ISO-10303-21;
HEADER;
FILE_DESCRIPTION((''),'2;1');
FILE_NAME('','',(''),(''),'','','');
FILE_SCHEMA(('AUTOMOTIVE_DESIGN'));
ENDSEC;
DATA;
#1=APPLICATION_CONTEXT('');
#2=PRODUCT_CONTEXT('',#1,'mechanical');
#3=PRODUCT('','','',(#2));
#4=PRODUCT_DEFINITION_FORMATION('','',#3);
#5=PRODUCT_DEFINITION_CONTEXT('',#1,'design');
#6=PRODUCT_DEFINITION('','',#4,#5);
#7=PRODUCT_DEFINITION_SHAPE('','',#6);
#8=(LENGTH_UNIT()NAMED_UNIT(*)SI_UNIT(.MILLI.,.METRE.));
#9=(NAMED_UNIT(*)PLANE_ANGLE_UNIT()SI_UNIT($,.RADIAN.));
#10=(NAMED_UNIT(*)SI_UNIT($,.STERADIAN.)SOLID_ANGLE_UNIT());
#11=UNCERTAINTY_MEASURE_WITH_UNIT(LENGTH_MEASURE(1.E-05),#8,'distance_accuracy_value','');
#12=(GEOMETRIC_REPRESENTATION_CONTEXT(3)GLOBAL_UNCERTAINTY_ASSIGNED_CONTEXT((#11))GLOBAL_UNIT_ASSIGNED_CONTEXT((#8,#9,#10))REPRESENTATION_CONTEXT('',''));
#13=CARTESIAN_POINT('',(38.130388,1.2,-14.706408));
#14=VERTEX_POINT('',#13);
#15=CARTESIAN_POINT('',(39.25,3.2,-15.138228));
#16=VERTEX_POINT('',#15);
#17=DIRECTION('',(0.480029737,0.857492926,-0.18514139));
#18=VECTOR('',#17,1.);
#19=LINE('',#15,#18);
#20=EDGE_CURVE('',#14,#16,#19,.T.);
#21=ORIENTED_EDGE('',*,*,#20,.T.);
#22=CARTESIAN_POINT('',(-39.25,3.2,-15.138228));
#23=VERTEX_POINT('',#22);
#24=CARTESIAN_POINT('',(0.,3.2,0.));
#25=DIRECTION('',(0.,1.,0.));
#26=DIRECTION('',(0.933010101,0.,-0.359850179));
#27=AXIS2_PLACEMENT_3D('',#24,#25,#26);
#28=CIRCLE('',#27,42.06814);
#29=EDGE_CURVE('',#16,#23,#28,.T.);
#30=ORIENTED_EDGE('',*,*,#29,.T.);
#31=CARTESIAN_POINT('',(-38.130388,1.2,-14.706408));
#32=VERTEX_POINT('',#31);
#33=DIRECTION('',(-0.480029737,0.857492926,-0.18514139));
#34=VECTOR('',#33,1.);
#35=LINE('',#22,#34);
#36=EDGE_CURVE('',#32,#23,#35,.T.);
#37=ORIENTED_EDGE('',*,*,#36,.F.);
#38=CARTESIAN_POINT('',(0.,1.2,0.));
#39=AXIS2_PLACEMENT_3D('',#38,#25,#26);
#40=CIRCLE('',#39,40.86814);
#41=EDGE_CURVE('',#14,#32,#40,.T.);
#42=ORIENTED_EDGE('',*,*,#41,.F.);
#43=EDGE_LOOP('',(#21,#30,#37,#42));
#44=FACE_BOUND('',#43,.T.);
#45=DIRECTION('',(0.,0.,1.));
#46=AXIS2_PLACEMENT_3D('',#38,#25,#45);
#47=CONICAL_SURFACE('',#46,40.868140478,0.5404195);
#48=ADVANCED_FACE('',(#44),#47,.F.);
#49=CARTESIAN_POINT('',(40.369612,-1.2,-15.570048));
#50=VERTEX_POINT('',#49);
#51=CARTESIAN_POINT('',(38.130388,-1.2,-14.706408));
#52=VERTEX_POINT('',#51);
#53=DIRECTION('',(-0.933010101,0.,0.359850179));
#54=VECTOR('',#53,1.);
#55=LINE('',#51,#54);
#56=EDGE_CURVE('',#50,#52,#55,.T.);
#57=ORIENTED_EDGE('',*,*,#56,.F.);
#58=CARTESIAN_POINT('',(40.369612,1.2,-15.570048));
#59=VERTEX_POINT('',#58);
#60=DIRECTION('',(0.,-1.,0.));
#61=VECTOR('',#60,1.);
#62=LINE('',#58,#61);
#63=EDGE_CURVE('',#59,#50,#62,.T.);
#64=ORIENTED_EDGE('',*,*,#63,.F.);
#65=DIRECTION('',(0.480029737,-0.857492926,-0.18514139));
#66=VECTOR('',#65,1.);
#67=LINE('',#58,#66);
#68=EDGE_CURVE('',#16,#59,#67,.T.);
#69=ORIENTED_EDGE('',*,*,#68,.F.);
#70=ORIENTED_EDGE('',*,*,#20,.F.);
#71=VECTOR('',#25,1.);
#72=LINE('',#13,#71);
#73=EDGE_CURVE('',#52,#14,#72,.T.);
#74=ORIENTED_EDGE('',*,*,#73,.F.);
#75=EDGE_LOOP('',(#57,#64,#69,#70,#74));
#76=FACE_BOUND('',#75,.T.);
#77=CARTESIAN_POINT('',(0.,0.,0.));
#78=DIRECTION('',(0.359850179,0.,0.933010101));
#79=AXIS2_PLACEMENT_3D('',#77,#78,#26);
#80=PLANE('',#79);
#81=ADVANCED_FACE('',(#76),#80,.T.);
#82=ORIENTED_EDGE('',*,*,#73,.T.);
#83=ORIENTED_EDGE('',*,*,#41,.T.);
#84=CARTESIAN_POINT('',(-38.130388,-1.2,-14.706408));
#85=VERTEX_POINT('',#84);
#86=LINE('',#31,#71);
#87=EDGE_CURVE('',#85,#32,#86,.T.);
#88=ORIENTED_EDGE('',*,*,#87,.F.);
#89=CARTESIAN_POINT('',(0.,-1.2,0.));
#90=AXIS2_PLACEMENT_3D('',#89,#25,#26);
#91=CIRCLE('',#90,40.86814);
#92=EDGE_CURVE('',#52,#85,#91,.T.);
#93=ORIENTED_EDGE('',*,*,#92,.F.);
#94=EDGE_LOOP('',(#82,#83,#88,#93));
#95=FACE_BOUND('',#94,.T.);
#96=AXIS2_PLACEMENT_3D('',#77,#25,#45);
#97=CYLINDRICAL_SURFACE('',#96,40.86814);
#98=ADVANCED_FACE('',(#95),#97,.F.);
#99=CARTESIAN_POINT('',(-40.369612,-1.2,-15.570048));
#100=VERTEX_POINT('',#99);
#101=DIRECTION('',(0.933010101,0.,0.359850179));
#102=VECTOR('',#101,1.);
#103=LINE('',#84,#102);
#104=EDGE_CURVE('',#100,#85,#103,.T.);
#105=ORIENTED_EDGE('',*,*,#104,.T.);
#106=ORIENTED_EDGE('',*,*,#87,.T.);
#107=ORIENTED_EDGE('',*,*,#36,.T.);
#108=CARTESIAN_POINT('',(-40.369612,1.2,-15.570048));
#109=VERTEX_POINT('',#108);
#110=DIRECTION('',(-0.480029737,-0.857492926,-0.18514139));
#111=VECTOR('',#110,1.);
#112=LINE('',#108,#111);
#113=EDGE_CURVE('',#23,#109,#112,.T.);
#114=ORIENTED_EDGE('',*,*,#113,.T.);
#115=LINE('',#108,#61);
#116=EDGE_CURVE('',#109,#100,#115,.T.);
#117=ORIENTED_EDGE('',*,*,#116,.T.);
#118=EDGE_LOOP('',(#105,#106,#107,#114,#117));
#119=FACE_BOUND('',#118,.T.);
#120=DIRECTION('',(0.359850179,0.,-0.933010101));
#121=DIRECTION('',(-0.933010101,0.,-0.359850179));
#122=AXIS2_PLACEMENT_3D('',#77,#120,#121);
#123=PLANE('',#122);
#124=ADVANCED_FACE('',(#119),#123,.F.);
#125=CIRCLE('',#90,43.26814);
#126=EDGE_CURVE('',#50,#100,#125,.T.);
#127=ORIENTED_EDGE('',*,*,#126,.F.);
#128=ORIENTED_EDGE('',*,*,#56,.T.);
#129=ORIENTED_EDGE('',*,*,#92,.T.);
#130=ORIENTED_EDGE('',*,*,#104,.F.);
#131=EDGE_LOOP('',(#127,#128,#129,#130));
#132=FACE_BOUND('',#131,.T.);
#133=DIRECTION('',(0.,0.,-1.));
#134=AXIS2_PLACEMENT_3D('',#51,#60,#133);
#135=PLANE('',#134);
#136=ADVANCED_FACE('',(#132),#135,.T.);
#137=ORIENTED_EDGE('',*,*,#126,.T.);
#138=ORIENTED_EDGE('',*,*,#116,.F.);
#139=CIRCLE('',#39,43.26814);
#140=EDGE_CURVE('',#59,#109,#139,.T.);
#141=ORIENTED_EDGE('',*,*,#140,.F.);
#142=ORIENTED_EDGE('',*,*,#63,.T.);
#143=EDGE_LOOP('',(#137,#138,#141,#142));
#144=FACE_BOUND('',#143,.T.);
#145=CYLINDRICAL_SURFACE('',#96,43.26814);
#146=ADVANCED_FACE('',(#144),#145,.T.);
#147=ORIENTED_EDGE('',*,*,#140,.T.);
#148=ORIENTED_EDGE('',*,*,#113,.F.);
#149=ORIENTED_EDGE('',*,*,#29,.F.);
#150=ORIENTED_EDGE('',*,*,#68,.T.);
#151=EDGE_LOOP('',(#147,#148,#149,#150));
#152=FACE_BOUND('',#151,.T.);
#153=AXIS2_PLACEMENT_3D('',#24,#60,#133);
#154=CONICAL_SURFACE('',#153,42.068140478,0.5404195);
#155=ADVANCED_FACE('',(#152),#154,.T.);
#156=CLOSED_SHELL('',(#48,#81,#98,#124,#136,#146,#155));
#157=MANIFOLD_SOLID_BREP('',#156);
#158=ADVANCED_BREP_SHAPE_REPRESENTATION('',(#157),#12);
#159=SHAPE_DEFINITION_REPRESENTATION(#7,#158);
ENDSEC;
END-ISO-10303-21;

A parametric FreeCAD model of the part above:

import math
import FreeCAD as App
import Part
import Sketcher


def add_polygon(sketch, points):
    """Adds a closed chain of lines whose ends are joined by coincident constraints."""
    first, n = sketch.GeometryCount, len(points)
    for a, b in zip(points, points[1:] + points[:1]):
        sketch.addGeometry(Part.LineSegment(App.Vector(*a, 0), App.Vector(*b, 0)), False)
    for i in range(n):
        sketch.addConstraint(Sketcher.Constraint("Coincident", first + i, 2, first + (i + 1) % n, 1))

doc = App.newDocument("Part")
params = doc.addObject("Spreadsheet::Sheet", "Params")
for row, (alias, value) in enumerate([
    ("sketch1_width", "2.4 mm"),
    ("sketch2_width", "78.5 mm"),
], start=1):
    params.set(f"A{row}", alias)
    params.set(f"B{row}", "=" + value)
    params.setAlias(f"B{row}", alias)

body = doc.addObject("PartDesign::Body", "Body")

sketch1 = doc.addObject("Sketcher::SketchObject", "Sketch")
body.addObject(sketch1)
sketch1.Placement = App.Placement(App.Vector(0, 0, 0), App.Rotation(App.Vector(0.933010101, 0, 0.359850179), App.Vector(0, 1, 0), App.Vector(-0.359850179, 0, 0.933010101), "ZXY"))
add_polygon(sketch1, [(-42.06814, 3.2), (-43.26814, 1.2), (-43.26814, -1.2), (-40.86814, -1.2), (-40.86814, 1.2)])
sketch1.addConstraint(Sketcher.Constraint("Vertical", 1))
sketch1.addConstraint(Sketcher.Constraint("Horizontal", 2))
sketch1.addConstraint(Sketcher.Constraint("Vertical", 3))
sketch1.addConstraint(Sketcher.Constraint("Horizontal", 0, 2, 3, 2))
sketch1.addConstraint(Sketcher.Constraint("Equal", 2, 1))
sketch1.addConstraint(Sketcher.Constraint("Equal", 0, 4))
sketch1.addConstraint(Sketcher.Constraint("DistanceX", 2, 1, 2, 2, 2.4))
sketch1.addConstraint(Sketcher.Constraint("DistanceY", 0, 2, 4, 2, 2.0))
sketch1.addConstraint(Sketcher.Constraint("DistanceY", -1, 1, 0, 2, 1.2))
sketch1.addConstraint(Sketcher.Constraint("DistanceX", 0, 2, -1, 1, 43.26814))
sketch1.setExpression("Constraints[11]", "Params.sketch1_width")

sketch2 = doc.addObject("Sketcher::SketchObject", "Sketch001")
body.addObject(sketch2)
sketch2.AttachmentSupport = (doc.XZ_Plane, [""])
sketch2.MapMode = "FlatFace"
sketch2.addGeometry(Part.ArcOfCircle(Part.Circle(App.Vector(0, 0, 0), App.Vector(0, 0, 1), 42.06814), math.radians(-158.909005), math.radians(-21.090995)), False)
sketch2.addConstraint(Sketcher.Constraint("Coincident", 0, 3, -1, 1))
sketch2.addConstraint(Sketcher.Constraint("DistanceX", 0, 1, 0, 2, 78.5))
sketch2.addConstraint(Sketcher.Constraint("DistanceX", 0, 1, -1, 1, 39.25))
sketch2.addConstraint(Sketcher.Constraint("Radius", 0, 42.06814))
sketch2.setExpression("Constraints[1]", "Params.sketch2_width")
doc.recompute()

additivepipe = doc.addObject("PartDesign::AdditivePipe", "AdditivePipe")
body.addObject(additivepipe)
additivepipe.Profile = sketch1
additivepipe.Spine = (sketch2, ["Edge1"])

doc.recompute()
